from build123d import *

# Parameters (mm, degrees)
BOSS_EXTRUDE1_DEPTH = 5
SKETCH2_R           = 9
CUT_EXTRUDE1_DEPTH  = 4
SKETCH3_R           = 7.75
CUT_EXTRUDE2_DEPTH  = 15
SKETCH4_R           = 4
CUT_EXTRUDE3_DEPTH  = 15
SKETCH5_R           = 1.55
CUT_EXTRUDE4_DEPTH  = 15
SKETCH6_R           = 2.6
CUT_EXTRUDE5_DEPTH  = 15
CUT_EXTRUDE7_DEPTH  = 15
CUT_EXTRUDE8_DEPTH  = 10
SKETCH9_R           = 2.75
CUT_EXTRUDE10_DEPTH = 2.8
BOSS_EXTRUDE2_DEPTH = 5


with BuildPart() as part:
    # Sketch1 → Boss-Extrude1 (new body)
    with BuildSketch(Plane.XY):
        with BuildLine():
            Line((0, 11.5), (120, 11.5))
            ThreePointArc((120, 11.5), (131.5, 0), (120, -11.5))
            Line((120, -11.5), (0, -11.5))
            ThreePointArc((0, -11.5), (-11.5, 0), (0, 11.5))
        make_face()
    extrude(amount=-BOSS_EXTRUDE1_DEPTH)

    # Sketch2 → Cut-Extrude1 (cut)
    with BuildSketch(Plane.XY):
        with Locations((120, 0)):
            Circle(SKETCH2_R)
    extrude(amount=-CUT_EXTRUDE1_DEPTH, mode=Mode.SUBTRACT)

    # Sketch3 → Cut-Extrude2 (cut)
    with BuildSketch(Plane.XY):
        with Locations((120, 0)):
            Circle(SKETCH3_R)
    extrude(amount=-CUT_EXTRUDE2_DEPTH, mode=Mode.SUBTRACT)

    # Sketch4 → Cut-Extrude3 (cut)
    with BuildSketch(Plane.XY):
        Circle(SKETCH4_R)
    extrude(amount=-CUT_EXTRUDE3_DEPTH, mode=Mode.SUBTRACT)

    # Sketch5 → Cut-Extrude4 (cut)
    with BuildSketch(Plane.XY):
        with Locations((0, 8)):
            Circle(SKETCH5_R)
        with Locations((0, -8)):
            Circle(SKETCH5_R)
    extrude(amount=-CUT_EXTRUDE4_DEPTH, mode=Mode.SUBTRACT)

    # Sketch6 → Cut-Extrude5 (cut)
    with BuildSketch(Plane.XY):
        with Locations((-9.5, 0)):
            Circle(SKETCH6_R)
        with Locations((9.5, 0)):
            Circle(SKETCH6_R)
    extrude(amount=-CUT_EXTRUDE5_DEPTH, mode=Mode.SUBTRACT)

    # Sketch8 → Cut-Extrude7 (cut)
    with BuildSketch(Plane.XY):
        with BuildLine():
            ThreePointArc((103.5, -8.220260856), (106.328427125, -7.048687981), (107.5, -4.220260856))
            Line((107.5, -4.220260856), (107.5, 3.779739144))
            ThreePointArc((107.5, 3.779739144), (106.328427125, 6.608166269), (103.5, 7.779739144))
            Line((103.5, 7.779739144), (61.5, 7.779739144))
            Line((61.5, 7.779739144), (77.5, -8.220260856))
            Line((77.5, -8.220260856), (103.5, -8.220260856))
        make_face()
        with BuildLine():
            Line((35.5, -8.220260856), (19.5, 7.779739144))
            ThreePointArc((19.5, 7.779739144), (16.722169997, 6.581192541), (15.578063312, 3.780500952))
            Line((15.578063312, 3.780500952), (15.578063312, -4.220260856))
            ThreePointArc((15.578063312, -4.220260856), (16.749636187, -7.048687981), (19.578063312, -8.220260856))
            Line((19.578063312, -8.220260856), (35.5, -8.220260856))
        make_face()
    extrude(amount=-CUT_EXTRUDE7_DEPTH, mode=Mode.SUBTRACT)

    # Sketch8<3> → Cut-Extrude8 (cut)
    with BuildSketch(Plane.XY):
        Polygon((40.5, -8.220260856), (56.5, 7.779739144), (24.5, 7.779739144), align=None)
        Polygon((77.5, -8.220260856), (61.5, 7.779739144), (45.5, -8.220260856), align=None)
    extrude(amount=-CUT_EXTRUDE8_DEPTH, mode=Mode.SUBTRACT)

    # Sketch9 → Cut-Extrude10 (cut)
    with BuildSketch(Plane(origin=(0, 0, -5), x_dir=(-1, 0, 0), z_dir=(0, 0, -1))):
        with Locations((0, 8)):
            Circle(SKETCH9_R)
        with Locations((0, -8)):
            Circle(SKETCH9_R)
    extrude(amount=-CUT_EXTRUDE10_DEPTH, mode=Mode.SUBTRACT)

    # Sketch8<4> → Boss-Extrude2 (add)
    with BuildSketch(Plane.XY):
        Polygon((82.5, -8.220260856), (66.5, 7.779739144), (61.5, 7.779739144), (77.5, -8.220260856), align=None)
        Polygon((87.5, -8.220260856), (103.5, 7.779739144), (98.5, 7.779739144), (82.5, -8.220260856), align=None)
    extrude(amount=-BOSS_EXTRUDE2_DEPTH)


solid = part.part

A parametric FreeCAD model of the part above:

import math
import FreeCAD as App
import Part
import Sketcher

V = App.Vector

doc = App.newDocument("Part")
body = doc.addObject("PartDesign::Body", "Body")

# Sketch on XY plane
sketch1 = body.newObject("Sketcher::SketchObject", "Sketch")
sketch1.AttachmentSupport = (doc.getObject("XY_Plane"), [""])
sketch1.MapMode = "FlatFace"
sketch1.addGeometry([
    Part.LineSegment(V(120, 12, 0), V(0, 12, 0)),
    Part.ArcOfCircle(Part.Circle(V(0, 0, 0), V(0, 0, 1), 12), math.radians(90), math.radians(270)),
    Part.LineSegment(V(0, -12, 0), V(120, -12, 0)),
    Part.ArcOfCircle(Part.Circle(V(120, 0, 0), V(0, 0, 1), 12), math.radians(-90), math.radians(90)),
], False)
sketch1.addConstraint([
    Sketcher.Constraint("Tangent", 0, 2, 1, 1),
    Sketcher.Constraint("Tangent", 1, 2, 2, 1),
    Sketcher.Constraint("Tangent", 2, 2, 3, 1),
    Sketcher.Constraint("Tangent", 3, 2, 0, 1),
    Sketcher.Constraint("Horizontal", 0),
    Sketcher.Constraint("Horizontal", 2),
    Sketcher.Constraint("Coincident", 1, 3, -1, 1),
    Sketcher.Constraint("Radius", 1, 11.5),
    Sketcher.Constraint("DistanceX", 0, 2, 0, 1, 120.0),
])
pad1 = body.newObject("PartDesign::Pad", "Pad")
pad1.Profile = sketch1
pad1.Length = 5
pad1.Reversed = True

# Sketch on XY plane
sketch2 = body.newObject("Sketcher::SketchObject", "Sketch001")
sketch2.AttachmentSupport = (doc.getObject("XY_Plane"), [""])
sketch2.MapMode = "FlatFace"
sketch2.addGeometry(Part.Circle(V(120, 0, 0), V(0, 0, 1), 9), False)
sketch2.addConstraint([
    Sketcher.Constraint("PointOnObject", 0, 3, -1),
    Sketcher.Constraint("Diameter", 0, 18.0),
    Sketcher.Constraint("DistanceX", -1, 1, 0, 3, 120.0),
])
pocket1 = body.newObject("PartDesign::Pocket", "Pocket")
pocket1.Profile = sketch2
pocket1.Length = 4

# Sketch on XY plane
sketch3 = body.newObject("Sketcher::SketchObject", "Sketch002")
sketch3.AttachmentSupport = (doc.getObject("XY_Plane"), [""])
sketch3.MapMode = "FlatFace"
sketch3.addGeometry(Part.Circle(V(120, 0, 0), V(0, 0, 1), 8), False)
sketch3.addConstraint([
    Sketcher.Constraint("PointOnObject", 0, 3, -1),
    Sketcher.Constraint("Diameter", 0, 15.5),
    Sketcher.Constraint("DistanceX", -1, 1, 0, 3, 120.0),
])
pocket2 = body.newObject("PartDesign::Pocket", "Pocket001")
pocket2.Profile = sketch3
pocket2.Length = 15

# Sketch on XY plane
sketch4 = body.newObject("Sketcher::SketchObject", "Sketch003")
sketch4.AttachmentSupport = (doc.getObject("XY_Plane"), [""])
sketch4.MapMode = "FlatFace"
sketch4.addGeometry(Part.Circle(V(0, 0, 0), V(0, 0, 1), 4), False)
sketch4.addConstraint([
    Sketcher.Constraint("Coincident", 0, 3, -1, 1),
    Sketcher.Constraint("Diameter", 0, 8.0),
])
pocket3 = body.newObject("PartDesign::Pocket", "Pocket002")
pocket3.Profile = sketch4
pocket3.Length = 15

# Sketch on XY plane
sketch5 = body.newObject("Sketcher::SketchObject", "Sketch004")
sketch5.AttachmentSupport = (doc.getObject("XY_Plane"), [""])
sketch5.MapMode = "FlatFace"
sketch5.addGeometry([
    Part.Circle(V(0, 8, 0), V(0, 0, 1), 1.6),
    Part.Circle(V(0, -8, 0), V(0, 0, 1), 1.6),
], False)
sketch5.addConstraint([
    Sketcher.Constraint("Equal", 0, 1),
    Sketcher.Constraint("Symmetric", 0, 3, 1, 3, -1, 1),
    Sketcher.Constraint("PointOnObject", 0, 3, -2),
    Sketcher.Constraint("Diameter", 0, 3.1),
    Sketcher.Constraint("DistanceY", -1, 1, 0, 3, 8.0),
])
pocket4 = body.newObject("PartDesign::Pocket", "Pocket003")
pocket4.Profile = sketch5
pocket4.Length = 15

# Sketch on XY plane
sketch6 = body.newObject("Sketcher::SketchObject", "Sketch005")
sketch6.AttachmentSupport = (doc.getObject("XY_Plane"), [""])
sketch6.MapMode = "FlatFace"
sketch6.addGeometry([
    Part.Circle(V(-9.5, 0, 0), V(0, 0, 1), 2.6),
    Part.Circle(V(9.5, 0, 0), V(0, 0, 1), 2.6),
], False)
sketch6.addConstraint([
    Sketcher.Constraint("Equal", 0, 1),
    Sketcher.Constraint("Symmetric", 0, 3, 1, 3, -1, 1),
    Sketcher.Constraint("PointOnObject", 0, 3, -1),
    Sketcher.Constraint("Diameter", 0, 5.2),
    Sketcher.Constraint("DistanceX", 0, 3, 1, 3, 19.0),
])
pocket5 = body.newObject("PartDesign::Pocket", "Pocket004")
pocket5.Profile = sketch6
pocket5.Length = 15

# Sketch on XY plane
sketch7 = body.newObject("Sketcher::SketchObject", "Sketch006")
sketch7.AttachmentSupport = (doc.getObject("XY_Plane"), [""])
sketch7.MapMode = "FlatFace"
sketch7.addGeometry([
    Part.ArcOfCircle(Part.Circle(V(103.5, -4.2, 0), V(0, 0, 1), 4), math.radians(-90), math.radians(0)),  # 0
    Part.LineSegment(V(107.5, -4.2, 0), V(107.5, 3.8, 0)),  # 1
    Part.ArcOfCircle(Part.Circle(V(103.5, 3.8, 0), V(0, 0, 1), 4), math.radians(0), math.radians(90)),  # 2
    Part.LineSegment(V(103.5, 7.8, 0), V(61.5, 7.8, 0)),  # 3
    Part.LineSegment(V(61.5, 7.8, 0), V(77.5, -8.2, 0)),  # 4
    Part.LineSegment(V(77.5, -8.2, 0), V(103.5, -8.2, 0)),  # 5
    Part.LineSegment(V(35.5, -8.2, 0), V(19.5, 7.8, 0)),  # 6
    Part.ArcOfCircle(Part.Circle(V(19.6, 3.8, 0), V(0, 0, 1), 4), math.radians(91), math.radians(180)),  # 7
    Part.LineSegment(V(15.6, 3.8, 0), V(15.6, -4.2, 0)),  # 8
    Part.ArcOfCircle(Part.Circle(V(19.6, -4.2, 0), V(0, 0, 1), 4), math.radians(180), math.radians(270)),  # 9
    Part.LineSegment(V(19.6, -8.2, 0), V(35.5, -8.2, 0)),  # 10
], False)
sketch7.addConstraint([
    Sketcher.Constraint("Tangent", 0, 2, 1, 1),
    Sketcher.Constraint("Tangent", 1, 2, 2, 1),
    Sketcher.Constraint("Tangent", 2, 2, 3, 1),
    Sketcher.Constraint("Coincident", 3, 2, 4, 1),
    Sketcher.Constraint("Coincident", 4, 2, 5, 1),
    Sketcher.Constraint("Tangent", 5, 2, 0, 1),
    Sketcher.Constraint("Coincident", 6, 2, 7, 1),
    Sketcher.Constraint("Tangent", 7, 2, 8, 1),
    Sketcher.Constraint("Tangent", 8, 2, 9, 1),
    Sketcher.Constraint("Tangent", 9, 2, 10, 1),
    Sketcher.Constraint("Coincident", 10, 2, 6, 1),
    Sketcher.Constraint("Vertical", 1),
    Sketcher.Constraint("Horizontal", 3),
    Sketcher.Constraint("Horizontal", 5),
    Sketcher.Constraint("Vertical", 8),
    Sketcher.Constraint("Horizontal", 10),
    Sketcher.Constraint("Equal", 0, 2),
    Sketcher.Constraint("Equal", 2, 7),
    Sketcher.Constraint("Equal", 7, 9),
    Sketcher.Constraint("Parallel", 4, 6),
    Sketcher.Constraint("Horizontal", 0, 3, 9, 3),
    Sketcher.Constraint("Horizontal", 3, 2, 6, 2),
    Sketcher.Constraint("Radius", 0, 4.0),
    Sketcher.Constraint("DistanceX", 3, 2, 3, 1, 42.0),
    Sketcher.Constraint("DistanceX", 5, 1, 5, 2, 26.0),
    Sketcher.Constraint("DistanceY", 1, 1, 1, 2, 8.0),
    Sketcher.Constraint("DistanceX", 6, 2, 3, 2, 42.0),
    Sketcher.Constraint("DistanceX", -1, 1, 0, 3, 103.5),
    Sketcher.Constraint("DistanceY", 8, 2, 8, 1, 8.000762),
    Sketcher.Constraint("DistanceY", -1, 1, 7, 3, 3.780501),
])
pocket6 = body.newObject("PartDesign::Pocket", "Pocket005")
pocket6.Profile = sketch7
pocket6.Length = 15

# Sketch on XY plane
sketch8 = body.newObject("Sketcher::SketchObject", "Sketch007")
sketch8.AttachmentSupport = (doc.getObject("XY_Plane"), [""])
sketch8.MapMode = "FlatFace"
sketch8.addGeometry([
    Part.LineSegment(V(40, -8, 0), V(56, 8, 0)),  # 0
    Part.LineSegment(V(56, 8, 0), V(24, 8, 0)),  # 1
    Part.LineSegment(V(24, 8, 0), V(40, -8, 0)),  # 2
    Part.LineSegment(V(78, -8, 0), V(62, 8, 0)),  # 3
    Part.LineSegment(V(62, 8, 0), V(46, -8, 0)),  # 4
    Part.LineSegment(V(46, -8, 0), V(78, -8, 0)),  # 5
], False)
sketch8.addConstraint([
    Sketcher.Constraint("Coincident", 0, 2, 1, 1),
    Sketcher.Constraint("Coincident", 1, 2, 2, 1),
    Sketcher.Constraint("Coincident", 2, 2, 0, 1),
    Sketcher.Constraint("Coincident", 3, 2, 4, 1),
    Sketcher.Constraint("Coincident", 4, 2, 5, 1),
    Sketcher.Constraint("Coincident", 5, 2, 3, 1),
    Sketcher.Constraint("Horizontal", 1),
    Sketcher.Constraint("Horizontal", 5),
    Sketcher.Constraint("Perpendicular", 0, 2),
    Sketcher.Constraint("Parallel", 2, 3),
    Sketcher.Constraint("Perpendicular", 3, 4),
    Sketcher.Constraint("Horizontal", 1, 2, 3, 2),
    Sketcher.Constraint("Horizontal", 2, 2, 4, 2),
    Sketcher.Constraint("Equal", 0, 2),
    Sketcher.Constraint("DistanceX", 1, 2, 1, 1, 32.0),
    Sketcher.Constraint("DistanceX", 0, 2, 3, 2, 5.0),
    Sketcher.Constraint("DistanceX", -1, 1, 0, 2, 56.5),
    Sketcher.Constraint("DistanceY", -1, 1, 0, 2, 7.779739),
])
pocket7 = body.newObject("PartDesign::Pocket", "Pocket006")
pocket7.Profile = sketch8
pocket7.Length = 10

# Sketch on XY plane
sketch9 = body.newObject("Sketcher::SketchObject", "Sketch008")
sketch9.AttachmentSupport = (doc.getObject("XY_Plane"), [""])
sketch9.MapMode = "FlatFace"
sketch9.AttachmentOffset = App.Placement(V(0, 0, -5), App.Rotation())
sketch9.addGeometry([
    Part.Circle(V(0, 8, 0), V(0, 0, 1), 2.8),
    Part.Circle(V(0, -8, 0), V(0, 0, 1), 2.8),
], False)
sketch9.addConstraint([
    Sketcher.Constraint("Equal", 0, 1),
    Sketcher.Constraint("Symmetric", 0, 3, 1, 3, -1, 1),
    Sketcher.Constraint("PointOnObject", 0, 3, -2),
    Sketcher.Constraint("Diameter", 0, 5.5),
    Sketcher.Constraint("DistanceY", -1, 1, 0, 3, 8.0),
])
pocket8 = body.newObject("PartDesign::Pocket", "Pocket007")
pocket8.Profile = sketch9
pocket8.Length = 2.8
pocket8.Reversed = True

# Sketch on XY plane
sketch10 = body.newObject("Sketcher::SketchObject", "Sketch009")
sketch10.AttachmentSupport = (doc.getObject("XY_Plane"), [""])
sketch10.MapMode = "FlatFace"
sketch10.addGeometry([
    Part.LineSegment(V(82, -8, 0), V(66, 8, 0)),  # 0
    Part.LineSegment(V(66, 8, 0), V(62, 8, 0)),  # 1
    Part.LineSegment(V(62, 8, 0), V(78, -8, 0)),  # 2
    Part.LineSegment(V(78, -8, 0), V(82, -8, 0)),  # 3
    Part.LineSegment(V(88, -8, 0), V(104, 8, 0)),  # 4
    Part.LineSegment(V(104, 8, 0), V(98, 8, 0)),  # 5
    Part.LineSegment(V(98, 8, 0), V(82, -8, 0)),  # 6
    Part.LineSegment(V(82, -8, 0), V(88, -8, 0)),  # 7
], False)
sketch10.addConstraint([
    Sketcher.Constraint("Coincident", 0, 2, 1, 1),
    Sketcher.Constraint("Coincident", 1, 2, 2, 1),
    Sketcher.Constraint("Coincident", 2, 2, 3, 1),
    Sketcher.Constraint("Coincident", 3, 2, 0, 1),
    Sketcher.Constraint("Coincident", 4, 2, 5, 1),
    Sketcher.Constraint("Coincident", 5, 2, 6, 1),
    Sketcher.Constraint("Coincident", 6, 2, 7, 1),
    Sketcher.Constraint("Coincident", 7, 2, 4, 1),
    Sketcher.Constraint("Horizontal", 1),
    Sketcher.Constraint("Horizontal", 3),
    Sketcher.Constraint("Horizontal", 5),
    Sketcher.Constraint("Horizontal", 7),
    Sketcher.Constraint("Coincident", 6, 2, 3, 2),
    Sketcher.Constraint("Parallel", 0, 2),
    Sketcher.Constraint("Perpendicular", 2, 4),
    Sketcher.Constraint("Parallel", 4, 6),
    Sketcher.Constraint("Horizontal", 1, 2, 4, 2),
    Sketcher.Constraint("Equal", 3, 5),
    Sketcher.Constraint("Equal", 2, 4),
    Sketcher.Constraint("DistanceX", 1, 2, 1, 1, 5.0),
    Sketcher.Constraint("DistanceX", 0, 2, 2, 2, 11.0),
    Sketcher.Constraint("DistanceX", -1, 1, 0, 2, 66.5),
    Sketcher.Constraint("DistanceY", -1, 1, 0, 2, 7.779739),
])
pad2 = body.newObject("PartDesign::Pad", "Pad001")
pad2.Profile = sketch10
pad2.Length = 5
pad2.Reversed = True

doc.recompute()
